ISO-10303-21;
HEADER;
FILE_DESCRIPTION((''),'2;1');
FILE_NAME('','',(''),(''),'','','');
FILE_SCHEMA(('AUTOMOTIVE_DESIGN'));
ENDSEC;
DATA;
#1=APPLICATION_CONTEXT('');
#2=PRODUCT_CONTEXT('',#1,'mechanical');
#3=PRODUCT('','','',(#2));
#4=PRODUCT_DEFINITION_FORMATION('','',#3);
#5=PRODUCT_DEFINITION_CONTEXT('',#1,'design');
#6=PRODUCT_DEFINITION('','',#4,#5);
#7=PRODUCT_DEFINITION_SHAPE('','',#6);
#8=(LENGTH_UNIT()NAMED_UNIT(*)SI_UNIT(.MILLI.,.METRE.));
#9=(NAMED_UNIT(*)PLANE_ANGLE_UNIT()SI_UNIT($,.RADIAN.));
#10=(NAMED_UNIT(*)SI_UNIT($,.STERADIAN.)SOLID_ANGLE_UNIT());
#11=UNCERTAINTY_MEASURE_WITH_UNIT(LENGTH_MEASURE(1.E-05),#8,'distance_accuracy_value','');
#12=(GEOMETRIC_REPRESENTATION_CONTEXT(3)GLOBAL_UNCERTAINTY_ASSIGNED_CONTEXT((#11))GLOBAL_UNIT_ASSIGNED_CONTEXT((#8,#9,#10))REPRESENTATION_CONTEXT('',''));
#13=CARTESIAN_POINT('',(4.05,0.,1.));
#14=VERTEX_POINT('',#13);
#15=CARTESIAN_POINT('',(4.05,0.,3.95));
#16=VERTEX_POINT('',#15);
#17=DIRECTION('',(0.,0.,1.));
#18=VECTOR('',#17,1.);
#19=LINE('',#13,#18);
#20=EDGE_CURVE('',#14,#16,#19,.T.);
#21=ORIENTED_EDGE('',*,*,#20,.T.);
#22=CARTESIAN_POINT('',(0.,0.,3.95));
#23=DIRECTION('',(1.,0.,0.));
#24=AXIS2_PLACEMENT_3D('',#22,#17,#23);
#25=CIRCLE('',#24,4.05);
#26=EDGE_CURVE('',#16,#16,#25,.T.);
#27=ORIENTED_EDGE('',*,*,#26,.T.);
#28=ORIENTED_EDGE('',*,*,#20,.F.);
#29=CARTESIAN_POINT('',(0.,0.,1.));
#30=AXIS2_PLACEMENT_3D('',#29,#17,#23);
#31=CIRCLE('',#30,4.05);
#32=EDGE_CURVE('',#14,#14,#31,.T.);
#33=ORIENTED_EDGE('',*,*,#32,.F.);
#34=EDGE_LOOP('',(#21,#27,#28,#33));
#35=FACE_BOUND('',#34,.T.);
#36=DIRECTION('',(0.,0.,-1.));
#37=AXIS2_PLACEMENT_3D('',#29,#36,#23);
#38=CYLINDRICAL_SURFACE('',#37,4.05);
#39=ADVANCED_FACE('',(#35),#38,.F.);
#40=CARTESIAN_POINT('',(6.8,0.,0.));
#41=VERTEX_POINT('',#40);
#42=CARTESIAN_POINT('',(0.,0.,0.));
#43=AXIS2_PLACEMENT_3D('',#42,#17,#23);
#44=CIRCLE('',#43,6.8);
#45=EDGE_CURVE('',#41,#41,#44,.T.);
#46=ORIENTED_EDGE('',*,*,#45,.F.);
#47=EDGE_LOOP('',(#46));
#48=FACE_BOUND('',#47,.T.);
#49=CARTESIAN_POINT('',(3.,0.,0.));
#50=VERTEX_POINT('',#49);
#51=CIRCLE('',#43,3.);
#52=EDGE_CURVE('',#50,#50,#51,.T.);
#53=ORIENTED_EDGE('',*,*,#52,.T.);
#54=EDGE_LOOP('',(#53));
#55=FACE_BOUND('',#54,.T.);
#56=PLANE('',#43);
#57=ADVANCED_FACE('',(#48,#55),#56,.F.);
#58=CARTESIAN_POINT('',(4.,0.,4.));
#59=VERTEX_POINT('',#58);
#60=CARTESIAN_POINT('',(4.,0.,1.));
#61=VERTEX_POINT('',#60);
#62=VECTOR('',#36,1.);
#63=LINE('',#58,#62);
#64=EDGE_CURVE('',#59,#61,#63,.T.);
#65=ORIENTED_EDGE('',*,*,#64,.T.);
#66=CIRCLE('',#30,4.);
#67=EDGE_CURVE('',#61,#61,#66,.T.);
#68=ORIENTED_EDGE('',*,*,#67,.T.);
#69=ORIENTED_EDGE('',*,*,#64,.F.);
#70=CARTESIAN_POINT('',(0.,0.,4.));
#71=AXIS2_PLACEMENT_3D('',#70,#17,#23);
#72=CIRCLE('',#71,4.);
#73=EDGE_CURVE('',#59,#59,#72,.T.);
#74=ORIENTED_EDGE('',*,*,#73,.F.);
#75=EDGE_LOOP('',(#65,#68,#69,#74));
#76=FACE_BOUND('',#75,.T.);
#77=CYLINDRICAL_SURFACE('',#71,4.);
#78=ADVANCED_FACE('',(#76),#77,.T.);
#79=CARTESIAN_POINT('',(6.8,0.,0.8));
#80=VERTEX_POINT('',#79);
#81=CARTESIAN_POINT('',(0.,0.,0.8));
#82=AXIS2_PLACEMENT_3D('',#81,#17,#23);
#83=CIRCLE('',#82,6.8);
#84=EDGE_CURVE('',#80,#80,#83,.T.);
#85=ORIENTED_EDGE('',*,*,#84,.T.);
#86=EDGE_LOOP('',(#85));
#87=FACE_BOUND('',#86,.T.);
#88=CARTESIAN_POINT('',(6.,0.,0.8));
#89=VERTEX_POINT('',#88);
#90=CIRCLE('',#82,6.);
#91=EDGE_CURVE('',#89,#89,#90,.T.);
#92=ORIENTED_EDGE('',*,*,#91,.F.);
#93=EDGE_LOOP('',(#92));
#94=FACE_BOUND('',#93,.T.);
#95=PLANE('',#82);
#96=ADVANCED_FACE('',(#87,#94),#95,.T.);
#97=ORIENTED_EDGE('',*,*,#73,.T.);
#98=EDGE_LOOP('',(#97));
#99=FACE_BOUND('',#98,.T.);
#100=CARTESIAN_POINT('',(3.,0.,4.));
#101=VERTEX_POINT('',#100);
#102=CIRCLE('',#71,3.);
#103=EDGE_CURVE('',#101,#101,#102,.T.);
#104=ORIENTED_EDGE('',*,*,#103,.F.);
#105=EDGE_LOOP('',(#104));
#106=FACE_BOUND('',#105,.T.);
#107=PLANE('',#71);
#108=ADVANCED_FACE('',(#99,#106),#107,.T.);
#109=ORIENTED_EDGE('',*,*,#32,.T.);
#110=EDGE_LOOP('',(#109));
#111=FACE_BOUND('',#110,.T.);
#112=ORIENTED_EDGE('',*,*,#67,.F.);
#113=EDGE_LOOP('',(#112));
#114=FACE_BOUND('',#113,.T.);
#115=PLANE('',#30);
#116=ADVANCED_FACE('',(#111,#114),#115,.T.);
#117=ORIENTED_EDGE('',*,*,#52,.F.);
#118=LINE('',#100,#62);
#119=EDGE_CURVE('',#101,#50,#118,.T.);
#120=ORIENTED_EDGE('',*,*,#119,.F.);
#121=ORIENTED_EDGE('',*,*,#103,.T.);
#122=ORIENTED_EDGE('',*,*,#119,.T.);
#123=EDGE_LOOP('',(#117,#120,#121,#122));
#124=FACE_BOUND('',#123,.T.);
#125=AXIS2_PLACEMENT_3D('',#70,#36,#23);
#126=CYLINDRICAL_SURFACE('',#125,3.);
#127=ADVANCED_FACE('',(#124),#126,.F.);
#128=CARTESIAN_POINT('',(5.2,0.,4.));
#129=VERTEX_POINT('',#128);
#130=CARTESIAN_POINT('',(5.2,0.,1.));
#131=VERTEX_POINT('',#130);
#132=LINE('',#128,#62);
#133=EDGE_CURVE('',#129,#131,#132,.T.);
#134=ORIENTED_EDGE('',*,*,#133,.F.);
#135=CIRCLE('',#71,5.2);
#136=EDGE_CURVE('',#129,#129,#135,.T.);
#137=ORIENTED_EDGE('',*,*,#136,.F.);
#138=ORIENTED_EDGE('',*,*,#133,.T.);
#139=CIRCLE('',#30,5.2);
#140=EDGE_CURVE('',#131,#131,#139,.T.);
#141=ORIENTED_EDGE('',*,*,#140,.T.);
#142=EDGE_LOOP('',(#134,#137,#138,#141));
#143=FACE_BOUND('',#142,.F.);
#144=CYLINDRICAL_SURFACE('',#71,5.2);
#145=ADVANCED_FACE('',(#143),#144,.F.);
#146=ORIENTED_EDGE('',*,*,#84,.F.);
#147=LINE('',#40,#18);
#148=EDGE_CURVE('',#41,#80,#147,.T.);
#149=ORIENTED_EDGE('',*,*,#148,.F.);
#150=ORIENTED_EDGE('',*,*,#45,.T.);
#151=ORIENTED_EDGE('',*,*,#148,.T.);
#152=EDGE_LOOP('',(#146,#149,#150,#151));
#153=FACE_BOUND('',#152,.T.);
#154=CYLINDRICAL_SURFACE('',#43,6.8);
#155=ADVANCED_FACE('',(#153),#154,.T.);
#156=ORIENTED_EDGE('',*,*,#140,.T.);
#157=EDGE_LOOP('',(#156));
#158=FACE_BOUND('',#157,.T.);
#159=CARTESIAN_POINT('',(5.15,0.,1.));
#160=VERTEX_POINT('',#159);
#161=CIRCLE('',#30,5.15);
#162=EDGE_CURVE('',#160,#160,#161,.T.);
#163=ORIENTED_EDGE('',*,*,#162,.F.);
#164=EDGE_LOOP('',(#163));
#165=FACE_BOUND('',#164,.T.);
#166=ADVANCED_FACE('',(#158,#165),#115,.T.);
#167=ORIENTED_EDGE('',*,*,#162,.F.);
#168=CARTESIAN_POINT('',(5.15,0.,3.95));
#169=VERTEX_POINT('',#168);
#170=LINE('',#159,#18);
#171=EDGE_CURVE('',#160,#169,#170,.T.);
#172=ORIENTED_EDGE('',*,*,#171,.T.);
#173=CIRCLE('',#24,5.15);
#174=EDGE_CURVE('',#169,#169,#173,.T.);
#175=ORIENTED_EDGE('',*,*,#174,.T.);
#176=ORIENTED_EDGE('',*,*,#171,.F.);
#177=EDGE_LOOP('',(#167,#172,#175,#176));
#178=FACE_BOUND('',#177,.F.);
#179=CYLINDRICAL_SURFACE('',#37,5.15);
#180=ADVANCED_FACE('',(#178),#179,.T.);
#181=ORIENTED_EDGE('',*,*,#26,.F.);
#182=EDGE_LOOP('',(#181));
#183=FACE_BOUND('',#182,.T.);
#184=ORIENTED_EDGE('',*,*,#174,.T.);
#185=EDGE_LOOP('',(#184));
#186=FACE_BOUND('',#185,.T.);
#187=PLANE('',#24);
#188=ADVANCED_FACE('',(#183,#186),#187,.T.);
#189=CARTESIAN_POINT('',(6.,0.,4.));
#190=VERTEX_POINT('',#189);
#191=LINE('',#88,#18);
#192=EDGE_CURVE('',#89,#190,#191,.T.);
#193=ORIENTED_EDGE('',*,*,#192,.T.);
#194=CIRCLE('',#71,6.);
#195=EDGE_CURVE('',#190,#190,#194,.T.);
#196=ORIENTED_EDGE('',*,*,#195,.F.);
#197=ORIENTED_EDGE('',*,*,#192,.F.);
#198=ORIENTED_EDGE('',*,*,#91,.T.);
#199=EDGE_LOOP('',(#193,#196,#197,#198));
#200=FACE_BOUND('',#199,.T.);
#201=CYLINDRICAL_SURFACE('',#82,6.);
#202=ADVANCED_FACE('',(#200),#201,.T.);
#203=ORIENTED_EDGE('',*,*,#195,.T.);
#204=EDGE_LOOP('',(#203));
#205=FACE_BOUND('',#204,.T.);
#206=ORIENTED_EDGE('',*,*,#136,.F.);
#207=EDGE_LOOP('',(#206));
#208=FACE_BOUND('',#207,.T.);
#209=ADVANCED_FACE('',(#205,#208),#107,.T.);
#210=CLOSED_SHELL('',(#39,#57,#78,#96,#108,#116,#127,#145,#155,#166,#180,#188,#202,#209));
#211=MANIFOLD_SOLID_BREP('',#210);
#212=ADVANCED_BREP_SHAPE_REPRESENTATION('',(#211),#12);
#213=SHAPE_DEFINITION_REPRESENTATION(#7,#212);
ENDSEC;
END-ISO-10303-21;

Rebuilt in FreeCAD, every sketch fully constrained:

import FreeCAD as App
import Part
import Sketcher


def add_polygon(sketch, points):
    """Adds a closed chain of lines whose ends are joined by coincident constraints."""
    first, n = sketch.GeometryCount, len(points)
    for a, b in zip(points, points[1:] + points[:1]):
        sketch.addGeometry(Part.LineSegment(App.Vector(*a, 0), App.Vector(*b, 0)), False)
    for i in range(n):
        sketch.addConstraint(Sketcher.Constraint("Coincident", first + i, 2, first + (i + 1) % n, 1))

doc = App.newDocument("Part")
params = doc.addObject("Spreadsheet::Sheet", "Params")
for row, (alias, value) in enumerate([
    ("sketch1_width", "3 mm"),
    ("sketch1_height", "4 mm"),
    ("sketch1_width2", "3.8 mm"),
    ("revolution_angle", "360 deg"),
    ("sketch2_diameter", "8 mm"),
    ("sketch2_diameter2", "10.4 mm"),
    ("pocket1_length", "3 mm"),
    ("sketch3_diameter", "10.3 mm"),
    ("sketch3_diameter2", "8.1 mm"),
    ("pad1_length", "2.95 mm"),
], start=1):
    params.set(f"A{row}", alias)
    params.set(f"B{row}", "=" + value)
    params.setAlias(f"B{row}", alias)

body = doc.addObject("PartDesign::Body", "Body")

sketch1 = body.newObject("Sketcher::SketchObject", "Sketch")
sketch1.AttachmentSupport = (doc.getObject("XZ_Plane"), [""])
sketch1.MapMode = "FlatFace"
add_polygon(sketch1, [(3, 4), (3, 0), (6.8, 0), (6.8, 0.8), (6, 0.8), (6, 4)])
sketch1.addConstraint(Sketcher.Constraint("Vertical", 0))
sketch1.addConstraint(Sketcher.Constraint("Horizontal", 1))
sketch1.addConstraint(Sketcher.Constraint("Vertical", 2))
sketch1.addConstraint(Sketcher.Constraint("Horizontal", 3))
sketch1.addConstraint(Sketcher.Constraint("Vertical", 4))
sketch1.addConstraint(Sketcher.Constraint("Horizontal", 5))
sketch1.addConstraint(Sketcher.Constraint("PointOnObject", 0, 2, -1))
sketch1.addConstraint(Sketcher.Constraint("Equal", 3, 2))
sketch1.addConstraint(Sketcher.Constraint("DistanceX", 5, 2, 5, 1, 3.0))
sketch1.addConstraint(Sketcher.Constraint("DistanceY", 0, 2, 0, 1, 4.0))
sketch1.addConstraint(Sketcher.Constraint("DistanceX", 1, 1, 1, 2, 3.8))
sketch1.addConstraint(Sketcher.Constraint("DistanceX", -1, 1, 0, 2, 3.0))
sketch1.setExpression("Constraints[14]", "Params.sketch1_width")
sketch1.setExpression("Constraints[15]", "Params.sketch1_height")
sketch1.setExpression("Constraints[16]", "Params.sketch1_width2")
revolution = body.newObject("PartDesign::Revolution", "Revolution")
revolution.Profile = sketch1
revolution.ReferenceAxis = (sketch1, ["V_Axis"])
revolution.setExpression("Angle", "Params.revolution_angle")

sketch2 = body.newObject("Sketcher::SketchObject", "Sketch001")
sketch2.AttachmentSupport = (doc.getObject("XY_Plane"), [""])
sketch2.MapMode = "FlatFace"
sketch2.AttachmentOffset = App.Placement(App.Vector(0, 0, 4), App.Rotation())
sketch2.addGeometry(Part.Circle(App.Vector(0, 0, 0), App.Vector(0, 0, 1), 5.2), False)
sketch2.addGeometry(Part.Circle(App.Vector(0, 0, 0), App.Vector(0, 0, 1), 4), False)
sketch2.addConstraint(Sketcher.Constraint("Coincident", 0, 3, -1, 1))
sketch2.addConstraint(Sketcher.Constraint("Coincident", 1, 3, -1, 1))
sketch2.addConstraint(Sketcher.Constraint("Diameter", 1, 8.0))
sketch2.addConstraint(Sketcher.Constraint("Diameter", 0, 10.4))
sketch2.setExpression("Constraints[2]", "Params.sketch2_diameter")
sketch2.setExpression("Constraints[3]", "Params.sketch2_diameter2")
pocket1 = body.newObject("PartDesign::Pocket", "Pocket")
pocket1.Profile = sketch2
pocket1.setExpression("Length", "Params.pocket1_length")

sketch3 = body.newObject("Sketcher::SketchObject", "Sketch002")
sketch3.AttachmentSupport = (doc.getObject("XY_Plane"), [""])
sketch3.MapMode = "FlatFace"
sketch3.AttachmentOffset = App.Placement(App.Vector(0, 0, 1), App.Rotation())
sketch3.addGeometry(Part.Circle(App.Vector(0, 0, 0), App.Vector(0, 0, 1), 5.2), False)
sketch3.addGeometry(Part.Circle(App.Vector(0, 0, 0), App.Vector(0, 0, 1), 4), False)
sketch3.addConstraint(Sketcher.Constraint("Coincident", 0, 3, -1, 1))
sketch3.addConstraint(Sketcher.Constraint("Coincident", 1, 3, -1, 1))
sketch3.addConstraint(Sketcher.Constraint("Diameter", 0, 10.3))
sketch3.addConstraint(Sketcher.Constraint("Diameter", 1, 8.1))
sketch3.setExpression("Constraints[2]", "Params.sketch3_diameter")
sketch3.setExpression("Constraints[3]", "Params.sketch3_diameter2")
pad1 = body.newObject("PartDesign::Pad", "Pad")
pad1.Profile = sketch3
pad1.setExpression("Length", "Params.pad1_length")

doc.recompute()
